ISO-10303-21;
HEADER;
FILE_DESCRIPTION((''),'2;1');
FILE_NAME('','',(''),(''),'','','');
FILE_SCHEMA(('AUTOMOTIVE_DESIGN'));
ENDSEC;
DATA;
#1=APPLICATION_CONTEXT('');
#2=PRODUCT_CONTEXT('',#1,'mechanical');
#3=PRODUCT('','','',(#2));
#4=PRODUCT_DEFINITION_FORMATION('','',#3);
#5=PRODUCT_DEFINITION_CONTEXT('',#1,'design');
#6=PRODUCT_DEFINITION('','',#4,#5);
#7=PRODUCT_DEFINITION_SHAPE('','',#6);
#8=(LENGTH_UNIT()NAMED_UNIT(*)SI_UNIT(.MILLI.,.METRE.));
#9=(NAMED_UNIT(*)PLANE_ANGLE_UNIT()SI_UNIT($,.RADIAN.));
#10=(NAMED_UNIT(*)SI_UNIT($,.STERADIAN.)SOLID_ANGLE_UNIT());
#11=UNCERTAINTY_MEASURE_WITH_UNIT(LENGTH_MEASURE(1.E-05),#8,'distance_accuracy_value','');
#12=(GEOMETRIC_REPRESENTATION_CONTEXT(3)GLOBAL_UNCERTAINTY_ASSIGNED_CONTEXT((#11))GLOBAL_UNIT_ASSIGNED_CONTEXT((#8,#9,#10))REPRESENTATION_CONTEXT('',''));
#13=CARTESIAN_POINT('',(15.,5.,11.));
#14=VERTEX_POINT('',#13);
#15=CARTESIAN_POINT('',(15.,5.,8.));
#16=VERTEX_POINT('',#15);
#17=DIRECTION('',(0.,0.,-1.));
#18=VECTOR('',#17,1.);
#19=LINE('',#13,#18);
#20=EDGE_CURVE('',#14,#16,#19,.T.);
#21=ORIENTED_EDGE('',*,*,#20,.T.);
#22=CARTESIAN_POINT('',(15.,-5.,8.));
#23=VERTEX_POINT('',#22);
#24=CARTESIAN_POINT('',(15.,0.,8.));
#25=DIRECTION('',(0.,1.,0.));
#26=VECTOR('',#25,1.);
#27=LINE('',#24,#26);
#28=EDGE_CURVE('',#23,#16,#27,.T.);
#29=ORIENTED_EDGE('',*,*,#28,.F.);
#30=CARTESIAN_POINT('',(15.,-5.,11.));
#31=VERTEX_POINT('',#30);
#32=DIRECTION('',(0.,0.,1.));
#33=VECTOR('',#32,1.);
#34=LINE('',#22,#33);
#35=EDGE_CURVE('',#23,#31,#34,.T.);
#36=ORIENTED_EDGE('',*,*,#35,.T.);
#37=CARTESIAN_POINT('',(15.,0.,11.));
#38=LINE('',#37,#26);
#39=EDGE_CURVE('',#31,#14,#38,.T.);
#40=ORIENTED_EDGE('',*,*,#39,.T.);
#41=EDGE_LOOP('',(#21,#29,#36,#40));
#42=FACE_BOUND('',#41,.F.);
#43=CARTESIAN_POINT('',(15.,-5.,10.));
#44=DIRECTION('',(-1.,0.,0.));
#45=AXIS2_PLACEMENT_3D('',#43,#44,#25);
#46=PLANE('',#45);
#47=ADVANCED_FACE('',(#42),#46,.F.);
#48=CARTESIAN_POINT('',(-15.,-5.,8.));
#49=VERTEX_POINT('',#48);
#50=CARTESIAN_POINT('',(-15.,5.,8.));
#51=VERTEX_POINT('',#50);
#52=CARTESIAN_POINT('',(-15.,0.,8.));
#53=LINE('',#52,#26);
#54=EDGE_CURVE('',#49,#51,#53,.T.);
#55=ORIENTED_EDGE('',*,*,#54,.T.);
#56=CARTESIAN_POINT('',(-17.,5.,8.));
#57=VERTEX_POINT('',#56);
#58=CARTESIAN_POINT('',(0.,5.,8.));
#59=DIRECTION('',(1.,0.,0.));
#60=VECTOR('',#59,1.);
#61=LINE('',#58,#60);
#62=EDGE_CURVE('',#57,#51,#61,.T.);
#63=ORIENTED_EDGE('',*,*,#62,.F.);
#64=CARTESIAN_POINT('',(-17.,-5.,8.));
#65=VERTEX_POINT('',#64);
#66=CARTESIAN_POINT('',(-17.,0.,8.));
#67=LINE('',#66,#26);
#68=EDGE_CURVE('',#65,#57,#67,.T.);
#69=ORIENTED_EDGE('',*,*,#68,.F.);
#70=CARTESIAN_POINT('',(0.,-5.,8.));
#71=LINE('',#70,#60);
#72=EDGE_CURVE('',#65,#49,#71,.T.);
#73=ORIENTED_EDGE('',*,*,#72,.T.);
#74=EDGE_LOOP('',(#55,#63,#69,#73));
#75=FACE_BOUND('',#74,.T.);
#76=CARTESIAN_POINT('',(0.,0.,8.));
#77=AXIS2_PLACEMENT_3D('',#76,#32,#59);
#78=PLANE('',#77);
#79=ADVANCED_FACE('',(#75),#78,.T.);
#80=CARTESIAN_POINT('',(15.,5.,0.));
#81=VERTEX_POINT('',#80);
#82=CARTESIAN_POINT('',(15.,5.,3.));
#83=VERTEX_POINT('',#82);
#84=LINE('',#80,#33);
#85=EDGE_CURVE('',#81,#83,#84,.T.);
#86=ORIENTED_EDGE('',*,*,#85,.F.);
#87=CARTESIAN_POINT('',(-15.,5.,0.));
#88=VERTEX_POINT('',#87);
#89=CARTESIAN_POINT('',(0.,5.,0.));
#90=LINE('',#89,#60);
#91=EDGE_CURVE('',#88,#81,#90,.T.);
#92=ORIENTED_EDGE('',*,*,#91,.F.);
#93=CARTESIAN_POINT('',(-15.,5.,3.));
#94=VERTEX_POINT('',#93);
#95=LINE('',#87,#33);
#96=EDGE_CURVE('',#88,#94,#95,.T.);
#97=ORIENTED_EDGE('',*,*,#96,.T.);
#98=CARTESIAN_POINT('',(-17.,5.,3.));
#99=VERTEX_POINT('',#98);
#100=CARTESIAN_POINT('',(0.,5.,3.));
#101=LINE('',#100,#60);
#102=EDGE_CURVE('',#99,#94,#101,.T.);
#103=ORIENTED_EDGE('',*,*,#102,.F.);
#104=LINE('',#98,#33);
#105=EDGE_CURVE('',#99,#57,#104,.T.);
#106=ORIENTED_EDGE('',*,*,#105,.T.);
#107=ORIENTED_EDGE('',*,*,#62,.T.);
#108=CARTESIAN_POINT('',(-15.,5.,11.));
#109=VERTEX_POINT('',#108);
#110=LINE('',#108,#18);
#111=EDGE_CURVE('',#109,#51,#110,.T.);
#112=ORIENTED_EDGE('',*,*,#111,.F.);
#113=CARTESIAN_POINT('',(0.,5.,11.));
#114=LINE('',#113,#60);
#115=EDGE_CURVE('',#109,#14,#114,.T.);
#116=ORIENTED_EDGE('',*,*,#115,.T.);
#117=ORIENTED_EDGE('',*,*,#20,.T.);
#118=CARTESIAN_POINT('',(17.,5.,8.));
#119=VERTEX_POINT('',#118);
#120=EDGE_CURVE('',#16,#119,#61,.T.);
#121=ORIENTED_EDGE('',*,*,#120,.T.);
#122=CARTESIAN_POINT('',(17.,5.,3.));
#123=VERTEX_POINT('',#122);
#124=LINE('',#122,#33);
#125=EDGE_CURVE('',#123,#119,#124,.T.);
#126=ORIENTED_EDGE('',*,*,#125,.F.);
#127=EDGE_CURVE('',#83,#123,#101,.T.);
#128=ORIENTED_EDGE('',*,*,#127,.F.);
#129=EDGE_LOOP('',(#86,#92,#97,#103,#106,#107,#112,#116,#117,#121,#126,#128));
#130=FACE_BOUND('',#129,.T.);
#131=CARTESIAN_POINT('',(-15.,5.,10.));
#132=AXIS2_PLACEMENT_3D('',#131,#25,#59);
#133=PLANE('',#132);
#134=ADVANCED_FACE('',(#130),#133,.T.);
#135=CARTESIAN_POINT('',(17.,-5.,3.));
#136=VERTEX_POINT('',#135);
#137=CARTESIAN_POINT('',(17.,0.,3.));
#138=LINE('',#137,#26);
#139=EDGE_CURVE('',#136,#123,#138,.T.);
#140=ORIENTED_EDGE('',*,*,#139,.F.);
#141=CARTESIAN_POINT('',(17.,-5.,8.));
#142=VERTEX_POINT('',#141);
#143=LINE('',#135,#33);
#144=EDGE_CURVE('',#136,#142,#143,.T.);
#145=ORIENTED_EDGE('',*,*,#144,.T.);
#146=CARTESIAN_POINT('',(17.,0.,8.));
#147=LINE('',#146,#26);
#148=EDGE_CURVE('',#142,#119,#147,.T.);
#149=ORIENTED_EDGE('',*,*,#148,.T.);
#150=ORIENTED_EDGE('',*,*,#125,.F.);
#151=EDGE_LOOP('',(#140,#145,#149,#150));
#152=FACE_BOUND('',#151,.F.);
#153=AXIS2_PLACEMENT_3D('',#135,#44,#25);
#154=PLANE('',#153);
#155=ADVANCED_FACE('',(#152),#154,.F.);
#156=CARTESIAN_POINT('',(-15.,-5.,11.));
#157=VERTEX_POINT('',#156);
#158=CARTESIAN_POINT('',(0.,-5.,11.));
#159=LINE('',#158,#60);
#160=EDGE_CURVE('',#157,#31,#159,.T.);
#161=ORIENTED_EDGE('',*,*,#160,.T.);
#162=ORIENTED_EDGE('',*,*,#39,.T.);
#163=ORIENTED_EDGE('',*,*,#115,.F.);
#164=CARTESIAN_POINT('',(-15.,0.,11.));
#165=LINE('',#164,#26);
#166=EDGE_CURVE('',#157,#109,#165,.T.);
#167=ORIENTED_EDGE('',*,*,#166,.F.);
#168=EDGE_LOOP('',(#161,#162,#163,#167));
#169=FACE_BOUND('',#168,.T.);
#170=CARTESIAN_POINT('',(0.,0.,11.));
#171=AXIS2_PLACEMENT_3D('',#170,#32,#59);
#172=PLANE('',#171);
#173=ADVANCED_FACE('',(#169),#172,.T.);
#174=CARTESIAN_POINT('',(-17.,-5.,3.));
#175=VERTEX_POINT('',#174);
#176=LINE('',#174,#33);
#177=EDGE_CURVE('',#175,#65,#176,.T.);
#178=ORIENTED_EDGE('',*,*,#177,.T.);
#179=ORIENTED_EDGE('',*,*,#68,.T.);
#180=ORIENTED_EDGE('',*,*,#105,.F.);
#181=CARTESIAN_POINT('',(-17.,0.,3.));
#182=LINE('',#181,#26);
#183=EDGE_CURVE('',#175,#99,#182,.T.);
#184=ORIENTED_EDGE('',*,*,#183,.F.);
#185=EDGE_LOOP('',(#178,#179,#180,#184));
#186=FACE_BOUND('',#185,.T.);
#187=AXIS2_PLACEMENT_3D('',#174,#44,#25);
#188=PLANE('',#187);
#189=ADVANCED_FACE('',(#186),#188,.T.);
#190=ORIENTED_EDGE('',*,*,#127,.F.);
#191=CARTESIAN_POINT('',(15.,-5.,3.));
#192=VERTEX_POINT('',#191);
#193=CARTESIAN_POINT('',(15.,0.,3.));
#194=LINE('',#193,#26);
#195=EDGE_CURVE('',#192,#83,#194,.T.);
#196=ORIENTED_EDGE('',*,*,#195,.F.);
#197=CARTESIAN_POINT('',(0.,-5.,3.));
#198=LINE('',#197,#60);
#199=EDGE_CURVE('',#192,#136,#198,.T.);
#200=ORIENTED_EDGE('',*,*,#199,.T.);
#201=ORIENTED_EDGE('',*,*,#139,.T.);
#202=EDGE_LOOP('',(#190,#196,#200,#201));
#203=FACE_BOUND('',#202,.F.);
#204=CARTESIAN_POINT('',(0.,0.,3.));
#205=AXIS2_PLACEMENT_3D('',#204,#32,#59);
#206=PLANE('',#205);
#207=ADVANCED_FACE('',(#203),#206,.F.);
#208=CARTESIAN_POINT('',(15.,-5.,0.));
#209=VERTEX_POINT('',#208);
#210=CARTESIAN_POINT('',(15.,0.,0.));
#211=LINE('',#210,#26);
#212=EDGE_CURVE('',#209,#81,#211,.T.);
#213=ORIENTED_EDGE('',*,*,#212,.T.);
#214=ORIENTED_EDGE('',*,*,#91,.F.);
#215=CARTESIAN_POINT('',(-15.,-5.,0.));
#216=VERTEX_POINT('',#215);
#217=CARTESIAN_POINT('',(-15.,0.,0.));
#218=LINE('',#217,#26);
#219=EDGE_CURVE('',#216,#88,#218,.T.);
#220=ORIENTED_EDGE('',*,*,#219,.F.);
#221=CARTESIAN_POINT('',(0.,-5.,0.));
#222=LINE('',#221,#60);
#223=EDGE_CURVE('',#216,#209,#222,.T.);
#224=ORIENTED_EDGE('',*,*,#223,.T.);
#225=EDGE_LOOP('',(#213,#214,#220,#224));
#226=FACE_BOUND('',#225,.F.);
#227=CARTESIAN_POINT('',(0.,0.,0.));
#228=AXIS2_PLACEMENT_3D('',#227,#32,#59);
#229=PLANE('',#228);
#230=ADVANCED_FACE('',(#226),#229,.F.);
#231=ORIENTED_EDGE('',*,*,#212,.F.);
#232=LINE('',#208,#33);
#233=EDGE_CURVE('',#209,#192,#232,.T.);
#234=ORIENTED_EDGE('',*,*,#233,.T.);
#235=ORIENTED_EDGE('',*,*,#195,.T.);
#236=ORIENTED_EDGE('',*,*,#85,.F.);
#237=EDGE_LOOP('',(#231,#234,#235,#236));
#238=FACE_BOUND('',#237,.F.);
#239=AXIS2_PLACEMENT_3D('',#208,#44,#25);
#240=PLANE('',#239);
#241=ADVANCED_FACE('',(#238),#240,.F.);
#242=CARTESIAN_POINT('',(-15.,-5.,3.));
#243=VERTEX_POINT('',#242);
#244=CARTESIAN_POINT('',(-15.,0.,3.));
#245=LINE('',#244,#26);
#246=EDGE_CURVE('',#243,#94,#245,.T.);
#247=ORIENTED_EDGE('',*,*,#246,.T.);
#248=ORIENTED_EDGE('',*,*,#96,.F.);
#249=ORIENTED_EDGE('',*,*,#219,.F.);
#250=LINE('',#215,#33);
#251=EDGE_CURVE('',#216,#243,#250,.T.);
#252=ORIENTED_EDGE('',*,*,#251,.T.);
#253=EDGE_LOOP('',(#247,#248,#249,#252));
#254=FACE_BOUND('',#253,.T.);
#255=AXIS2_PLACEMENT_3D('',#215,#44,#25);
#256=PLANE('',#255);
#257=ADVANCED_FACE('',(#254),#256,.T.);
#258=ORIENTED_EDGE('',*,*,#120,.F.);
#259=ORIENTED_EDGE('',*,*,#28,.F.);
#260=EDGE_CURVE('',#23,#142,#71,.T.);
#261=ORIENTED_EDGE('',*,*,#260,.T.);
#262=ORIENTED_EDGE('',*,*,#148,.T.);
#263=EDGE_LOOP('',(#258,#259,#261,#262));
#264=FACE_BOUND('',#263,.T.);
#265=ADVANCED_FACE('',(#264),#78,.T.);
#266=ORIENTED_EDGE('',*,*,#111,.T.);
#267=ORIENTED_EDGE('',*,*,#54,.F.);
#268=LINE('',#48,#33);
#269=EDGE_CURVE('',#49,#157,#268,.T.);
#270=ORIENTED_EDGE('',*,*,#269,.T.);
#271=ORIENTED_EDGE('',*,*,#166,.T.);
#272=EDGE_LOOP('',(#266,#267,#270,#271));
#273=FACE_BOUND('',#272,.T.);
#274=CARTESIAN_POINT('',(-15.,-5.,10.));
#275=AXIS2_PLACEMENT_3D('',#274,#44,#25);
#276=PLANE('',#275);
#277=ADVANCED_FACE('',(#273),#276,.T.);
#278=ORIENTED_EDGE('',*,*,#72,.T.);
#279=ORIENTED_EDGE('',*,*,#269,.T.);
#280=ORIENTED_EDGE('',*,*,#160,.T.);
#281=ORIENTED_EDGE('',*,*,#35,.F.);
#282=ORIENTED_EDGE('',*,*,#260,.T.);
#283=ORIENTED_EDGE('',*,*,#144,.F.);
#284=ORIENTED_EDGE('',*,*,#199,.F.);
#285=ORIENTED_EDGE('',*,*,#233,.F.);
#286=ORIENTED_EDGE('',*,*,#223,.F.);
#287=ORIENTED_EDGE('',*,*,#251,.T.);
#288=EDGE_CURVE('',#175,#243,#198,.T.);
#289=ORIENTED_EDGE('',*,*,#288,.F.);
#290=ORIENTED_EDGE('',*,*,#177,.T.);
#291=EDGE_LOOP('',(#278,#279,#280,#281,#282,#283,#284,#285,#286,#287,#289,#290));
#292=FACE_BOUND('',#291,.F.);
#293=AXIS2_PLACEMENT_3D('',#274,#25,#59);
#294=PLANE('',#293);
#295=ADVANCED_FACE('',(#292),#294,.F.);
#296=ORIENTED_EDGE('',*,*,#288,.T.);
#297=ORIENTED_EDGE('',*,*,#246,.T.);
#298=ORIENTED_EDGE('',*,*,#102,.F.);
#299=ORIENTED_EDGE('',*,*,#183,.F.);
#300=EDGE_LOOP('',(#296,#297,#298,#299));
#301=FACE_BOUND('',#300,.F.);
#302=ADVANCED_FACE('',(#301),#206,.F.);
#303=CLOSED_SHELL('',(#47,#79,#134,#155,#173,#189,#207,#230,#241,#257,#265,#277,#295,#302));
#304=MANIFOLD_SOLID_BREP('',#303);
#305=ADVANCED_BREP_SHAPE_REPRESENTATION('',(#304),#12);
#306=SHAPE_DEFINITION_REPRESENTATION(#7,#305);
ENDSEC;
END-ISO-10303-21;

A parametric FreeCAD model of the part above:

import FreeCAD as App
import Part
import Sketcher

V = App.Vector
Q = App.Units.Quantity

doc = App.newDocument("Part")
body = doc.addObject("PartDesign::Body", "Body")

# Sketch on XY plane
sketch1 = body.newObject("Sketcher::SketchObject", "Sketch")
sketch1.AttachmentSupport = (doc.getObject("XY_Plane"), [""])
sketch1.MapMode = "FlatFace"
sketch1.addGeometry(Part.LineSegment(V(-15, 5, 0), V(-15, -5, 0)), False)
sketch1.addGeometry(Part.LineSegment(V(-15, -5, 0), V(15, -5, 0)), False)
sketch1.addGeometry(Part.LineSegment(V(15, -5, 0), V(15, 5, 0)), False)
sketch1.addGeometry(Part.LineSegment(V(15, 5, 0), V(-15, 5, 0)), False)
sketch1.addConstraint(Sketcher.Constraint("Coincident", 0, 2, 1, 1))
sketch1.addConstraint(Sketcher.Constraint("Coincident", 1, 2, 2, 1))
sketch1.addConstraint(Sketcher.Constraint("Coincident", 2, 2, 3, 1))
sketch1.addConstraint(Sketcher.Constraint("Coincident", 3, 2, 0, 1))
sketch1.addConstraint(Sketcher.Constraint("Vertical", 0))
sketch1.addConstraint(Sketcher.Constraint("Horizontal", 1))
sketch1.addConstraint(Sketcher.Constraint("Vertical", 2))
sketch1.addConstraint(Sketcher.Constraint("Horizontal", 3))
sketch1.addConstraint(Sketcher.Constraint("Symmetric", 0, 2, 2, 2, -1, 1))
sketch1.addConstraint(Sketcher.Constraint("DistanceX", 1, 1, 1, 2, Q("30 mm")))
sketch1.addConstraint(Sketcher.Constraint("DistanceY", 0, 2, 0, 1, Q("10 mm")))
pad1 = body.newObject("PartDesign::Pad", "Pad")
pad1.Profile = sketch1
pad1.Length = 3

# Sketch on XY plane
sketch2 = body.newObject("Sketcher::SketchObject", "Sketch001")
sketch2.AttachmentSupport = (doc.getObject("XY_Plane"), [""])
sketch2.MapMode = "FlatFace"
sketch2.AttachmentOffset = App.Placement(V(0, 0, 3), App.Rotation())
sketch2.addGeometry(Part.LineSegment(V(-17, 5, 0), V(-17, -5, 0)), False)
sketch2.addGeometry(Part.LineSegment(V(-17, -5, 0), V(17, -5, 0)), False)
sketch2.addGeometry(Part.LineSegment(V(17, -5, 0), V(17, 5, 0)), False)
sketch2.addGeometry(Part.LineSegment(V(17, 5, 0), V(-17, 5, 0)), False)
sketch2.addConstraint(Sketcher.Constraint("Coincident", 0, 2, 1, 1))
sketch2.addConstraint(Sketcher.Constraint("Coincident", 1, 2, 2, 1))
sketch2.addConstraint(Sketcher.Constraint("Coincident", 2, 2, 3, 1))
sketch2.addConstraint(Sketcher.Constraint("Coincident", 3, 2, 0, 1))
sketch2.addConstraint(Sketcher.Constraint("Vertical", 0))
sketch2.addConstraint(Sketcher.Constraint("Horizontal", 1))
sketch2.addConstraint(Sketcher.Constraint("Vertical", 2))
sketch2.addConstraint(Sketcher.Constraint("Horizontal", 3))
sketch2.addConstraint(Sketcher.Constraint("Symmetric", 0, 2, 2, 2, -1, 1))
sketch2.addConstraint(Sketcher.Constraint("DistanceX", 1, 1, 1, 2, Q("34 mm")))
sketch2.addConstraint(Sketcher.Constraint("DistanceY", 0, 2, 0, 1, Q("10 mm")))
pad2 = body.newObject("PartDesign::Pad", "Pad001")
pad2.Profile = sketch2
pad2.Length = 5

# Sketch on XY plane
sketch3 = body.newObject("Sketcher::SketchObject", "Sketch002")
sketch3.AttachmentSupport = (doc.getObject("XY_Plane"), [""])
sketch3.MapMode = "FlatFace"
sketch3.AttachmentOffset = App.Placement(V(0, 0, 8), App.Rotation())
sketch3.addGeometry(Part.LineSegment(V(-15, 5, 0), V(-15, -5, 0)), False)
sketch3.addGeometry(Part.LineSegment(V(-15, -5, 0), V(15, -5, 0)), False)
sketch3.addGeometry(Part.LineSegment(V(15, -5, 0), V(15, 5, 0)), False)
sketch3.addGeometry(Part.LineSegment(V(15, 5, 0), V(-15, 5, 0)), False)
sketch3.addConstraint(Sketcher.Constraint("Coincident", 0, 2, 1, 1))
sketch3.addConstraint(Sketcher.Constraint("Coincident", 1, 2, 2, 1))
sketch3.addConstraint(Sketcher.Constraint("Coincident", 2, 2, 3, 1))
sketch3.addConstraint(Sketcher.Constraint("Coincident", 3, 2, 0, 1))
sketch3.addConstraint(Sketcher.Constraint("Vertical", 0))
sketch3.addConstraint(Sketcher.Constraint("Horizontal", 1))
sketch3.addConstraint(Sketcher.Constraint("Vertical", 2))
sketch3.addConstraint(Sketcher.Constraint("Horizontal", 3))
sketch3.addConstraint(Sketcher.Constraint("Symmetric", 0, 2, 2, 2, -1, 1))
sketch3.addConstraint(Sketcher.Constraint("DistanceX", 1, 1, 1, 2, Q("30 mm")))
sketch3.addConstraint(Sketcher.Constraint("DistanceY", 0, 2, 0, 1, Q("10 mm")))
pad3 = body.newObject("PartDesign::Pad", "Pad002")
pad3.Profile = sketch3
pad3.Length = 2

# Sketch on XY plane
sketch4 = body.newObject("Sketcher::SketchObject", "Sketch003")
sketch4.AttachmentSupport = (doc.getObject("XY_Plane"), [""])
sketch4.MapMode = "FlatFace"
sketch4.AttachmentOffset = App.Placement(V(0, 0, 10), App.Rotation())
sketch4.addGeometry(Part.LineSegment(V(-15, 5, 0), V(-15, -5, 0)), False)
sketch4.addGeometry(Part.LineSegment(V(-15, -5, 0), V(15, -5, 0)), False)
sketch4.addGeometry(Part.LineSegment(V(15, -5, 0), V(15, 5, 0)), False)
sketch4.addGeometry(Part.LineSegment(V(15, 5, 0), V(-15, 5, 0)), False)
sketch4.addConstraint(Sketcher.Constraint("Coincident", 0, 2, 1, 1))
sketch4.addConstraint(Sketcher.Constraint("Coincident", 1, 2, 2, 1))
sketch4.addConstraint(Sketcher.Constraint("Coincident", 2, 2, 3, 1))
sketch4.addConstraint(Sketcher.Constraint("Coincident", 3, 2, 0, 1))
sketch4.addConstraint(Sketcher.Constraint("Vertical", 0))
sketch4.addConstraint(Sketcher.Constraint("Horizontal", 1))
sketch4.addConstraint(Sketcher.Constraint("Vertical", 2))
sketch4.addConstraint(Sketcher.Constraint("Horizontal", 3))
sketch4.addConstraint(Sketcher.Constraint("Symmetric", 0, 2, 2, 2, -1, 1))
sketch4.addConstraint(Sketcher.Constraint("DistanceX", 1, 1, 1, 2, Q("30 mm")))
sketch4.addConstraint(Sketcher.Constraint("DistanceY", 0, 2, 0, 1, Q("10 mm")))
pad4 = body.newObject("PartDesign::Pad", "Pad003")
pad4.Profile = sketch4
pad4.Length = 1

doc.recompute()
